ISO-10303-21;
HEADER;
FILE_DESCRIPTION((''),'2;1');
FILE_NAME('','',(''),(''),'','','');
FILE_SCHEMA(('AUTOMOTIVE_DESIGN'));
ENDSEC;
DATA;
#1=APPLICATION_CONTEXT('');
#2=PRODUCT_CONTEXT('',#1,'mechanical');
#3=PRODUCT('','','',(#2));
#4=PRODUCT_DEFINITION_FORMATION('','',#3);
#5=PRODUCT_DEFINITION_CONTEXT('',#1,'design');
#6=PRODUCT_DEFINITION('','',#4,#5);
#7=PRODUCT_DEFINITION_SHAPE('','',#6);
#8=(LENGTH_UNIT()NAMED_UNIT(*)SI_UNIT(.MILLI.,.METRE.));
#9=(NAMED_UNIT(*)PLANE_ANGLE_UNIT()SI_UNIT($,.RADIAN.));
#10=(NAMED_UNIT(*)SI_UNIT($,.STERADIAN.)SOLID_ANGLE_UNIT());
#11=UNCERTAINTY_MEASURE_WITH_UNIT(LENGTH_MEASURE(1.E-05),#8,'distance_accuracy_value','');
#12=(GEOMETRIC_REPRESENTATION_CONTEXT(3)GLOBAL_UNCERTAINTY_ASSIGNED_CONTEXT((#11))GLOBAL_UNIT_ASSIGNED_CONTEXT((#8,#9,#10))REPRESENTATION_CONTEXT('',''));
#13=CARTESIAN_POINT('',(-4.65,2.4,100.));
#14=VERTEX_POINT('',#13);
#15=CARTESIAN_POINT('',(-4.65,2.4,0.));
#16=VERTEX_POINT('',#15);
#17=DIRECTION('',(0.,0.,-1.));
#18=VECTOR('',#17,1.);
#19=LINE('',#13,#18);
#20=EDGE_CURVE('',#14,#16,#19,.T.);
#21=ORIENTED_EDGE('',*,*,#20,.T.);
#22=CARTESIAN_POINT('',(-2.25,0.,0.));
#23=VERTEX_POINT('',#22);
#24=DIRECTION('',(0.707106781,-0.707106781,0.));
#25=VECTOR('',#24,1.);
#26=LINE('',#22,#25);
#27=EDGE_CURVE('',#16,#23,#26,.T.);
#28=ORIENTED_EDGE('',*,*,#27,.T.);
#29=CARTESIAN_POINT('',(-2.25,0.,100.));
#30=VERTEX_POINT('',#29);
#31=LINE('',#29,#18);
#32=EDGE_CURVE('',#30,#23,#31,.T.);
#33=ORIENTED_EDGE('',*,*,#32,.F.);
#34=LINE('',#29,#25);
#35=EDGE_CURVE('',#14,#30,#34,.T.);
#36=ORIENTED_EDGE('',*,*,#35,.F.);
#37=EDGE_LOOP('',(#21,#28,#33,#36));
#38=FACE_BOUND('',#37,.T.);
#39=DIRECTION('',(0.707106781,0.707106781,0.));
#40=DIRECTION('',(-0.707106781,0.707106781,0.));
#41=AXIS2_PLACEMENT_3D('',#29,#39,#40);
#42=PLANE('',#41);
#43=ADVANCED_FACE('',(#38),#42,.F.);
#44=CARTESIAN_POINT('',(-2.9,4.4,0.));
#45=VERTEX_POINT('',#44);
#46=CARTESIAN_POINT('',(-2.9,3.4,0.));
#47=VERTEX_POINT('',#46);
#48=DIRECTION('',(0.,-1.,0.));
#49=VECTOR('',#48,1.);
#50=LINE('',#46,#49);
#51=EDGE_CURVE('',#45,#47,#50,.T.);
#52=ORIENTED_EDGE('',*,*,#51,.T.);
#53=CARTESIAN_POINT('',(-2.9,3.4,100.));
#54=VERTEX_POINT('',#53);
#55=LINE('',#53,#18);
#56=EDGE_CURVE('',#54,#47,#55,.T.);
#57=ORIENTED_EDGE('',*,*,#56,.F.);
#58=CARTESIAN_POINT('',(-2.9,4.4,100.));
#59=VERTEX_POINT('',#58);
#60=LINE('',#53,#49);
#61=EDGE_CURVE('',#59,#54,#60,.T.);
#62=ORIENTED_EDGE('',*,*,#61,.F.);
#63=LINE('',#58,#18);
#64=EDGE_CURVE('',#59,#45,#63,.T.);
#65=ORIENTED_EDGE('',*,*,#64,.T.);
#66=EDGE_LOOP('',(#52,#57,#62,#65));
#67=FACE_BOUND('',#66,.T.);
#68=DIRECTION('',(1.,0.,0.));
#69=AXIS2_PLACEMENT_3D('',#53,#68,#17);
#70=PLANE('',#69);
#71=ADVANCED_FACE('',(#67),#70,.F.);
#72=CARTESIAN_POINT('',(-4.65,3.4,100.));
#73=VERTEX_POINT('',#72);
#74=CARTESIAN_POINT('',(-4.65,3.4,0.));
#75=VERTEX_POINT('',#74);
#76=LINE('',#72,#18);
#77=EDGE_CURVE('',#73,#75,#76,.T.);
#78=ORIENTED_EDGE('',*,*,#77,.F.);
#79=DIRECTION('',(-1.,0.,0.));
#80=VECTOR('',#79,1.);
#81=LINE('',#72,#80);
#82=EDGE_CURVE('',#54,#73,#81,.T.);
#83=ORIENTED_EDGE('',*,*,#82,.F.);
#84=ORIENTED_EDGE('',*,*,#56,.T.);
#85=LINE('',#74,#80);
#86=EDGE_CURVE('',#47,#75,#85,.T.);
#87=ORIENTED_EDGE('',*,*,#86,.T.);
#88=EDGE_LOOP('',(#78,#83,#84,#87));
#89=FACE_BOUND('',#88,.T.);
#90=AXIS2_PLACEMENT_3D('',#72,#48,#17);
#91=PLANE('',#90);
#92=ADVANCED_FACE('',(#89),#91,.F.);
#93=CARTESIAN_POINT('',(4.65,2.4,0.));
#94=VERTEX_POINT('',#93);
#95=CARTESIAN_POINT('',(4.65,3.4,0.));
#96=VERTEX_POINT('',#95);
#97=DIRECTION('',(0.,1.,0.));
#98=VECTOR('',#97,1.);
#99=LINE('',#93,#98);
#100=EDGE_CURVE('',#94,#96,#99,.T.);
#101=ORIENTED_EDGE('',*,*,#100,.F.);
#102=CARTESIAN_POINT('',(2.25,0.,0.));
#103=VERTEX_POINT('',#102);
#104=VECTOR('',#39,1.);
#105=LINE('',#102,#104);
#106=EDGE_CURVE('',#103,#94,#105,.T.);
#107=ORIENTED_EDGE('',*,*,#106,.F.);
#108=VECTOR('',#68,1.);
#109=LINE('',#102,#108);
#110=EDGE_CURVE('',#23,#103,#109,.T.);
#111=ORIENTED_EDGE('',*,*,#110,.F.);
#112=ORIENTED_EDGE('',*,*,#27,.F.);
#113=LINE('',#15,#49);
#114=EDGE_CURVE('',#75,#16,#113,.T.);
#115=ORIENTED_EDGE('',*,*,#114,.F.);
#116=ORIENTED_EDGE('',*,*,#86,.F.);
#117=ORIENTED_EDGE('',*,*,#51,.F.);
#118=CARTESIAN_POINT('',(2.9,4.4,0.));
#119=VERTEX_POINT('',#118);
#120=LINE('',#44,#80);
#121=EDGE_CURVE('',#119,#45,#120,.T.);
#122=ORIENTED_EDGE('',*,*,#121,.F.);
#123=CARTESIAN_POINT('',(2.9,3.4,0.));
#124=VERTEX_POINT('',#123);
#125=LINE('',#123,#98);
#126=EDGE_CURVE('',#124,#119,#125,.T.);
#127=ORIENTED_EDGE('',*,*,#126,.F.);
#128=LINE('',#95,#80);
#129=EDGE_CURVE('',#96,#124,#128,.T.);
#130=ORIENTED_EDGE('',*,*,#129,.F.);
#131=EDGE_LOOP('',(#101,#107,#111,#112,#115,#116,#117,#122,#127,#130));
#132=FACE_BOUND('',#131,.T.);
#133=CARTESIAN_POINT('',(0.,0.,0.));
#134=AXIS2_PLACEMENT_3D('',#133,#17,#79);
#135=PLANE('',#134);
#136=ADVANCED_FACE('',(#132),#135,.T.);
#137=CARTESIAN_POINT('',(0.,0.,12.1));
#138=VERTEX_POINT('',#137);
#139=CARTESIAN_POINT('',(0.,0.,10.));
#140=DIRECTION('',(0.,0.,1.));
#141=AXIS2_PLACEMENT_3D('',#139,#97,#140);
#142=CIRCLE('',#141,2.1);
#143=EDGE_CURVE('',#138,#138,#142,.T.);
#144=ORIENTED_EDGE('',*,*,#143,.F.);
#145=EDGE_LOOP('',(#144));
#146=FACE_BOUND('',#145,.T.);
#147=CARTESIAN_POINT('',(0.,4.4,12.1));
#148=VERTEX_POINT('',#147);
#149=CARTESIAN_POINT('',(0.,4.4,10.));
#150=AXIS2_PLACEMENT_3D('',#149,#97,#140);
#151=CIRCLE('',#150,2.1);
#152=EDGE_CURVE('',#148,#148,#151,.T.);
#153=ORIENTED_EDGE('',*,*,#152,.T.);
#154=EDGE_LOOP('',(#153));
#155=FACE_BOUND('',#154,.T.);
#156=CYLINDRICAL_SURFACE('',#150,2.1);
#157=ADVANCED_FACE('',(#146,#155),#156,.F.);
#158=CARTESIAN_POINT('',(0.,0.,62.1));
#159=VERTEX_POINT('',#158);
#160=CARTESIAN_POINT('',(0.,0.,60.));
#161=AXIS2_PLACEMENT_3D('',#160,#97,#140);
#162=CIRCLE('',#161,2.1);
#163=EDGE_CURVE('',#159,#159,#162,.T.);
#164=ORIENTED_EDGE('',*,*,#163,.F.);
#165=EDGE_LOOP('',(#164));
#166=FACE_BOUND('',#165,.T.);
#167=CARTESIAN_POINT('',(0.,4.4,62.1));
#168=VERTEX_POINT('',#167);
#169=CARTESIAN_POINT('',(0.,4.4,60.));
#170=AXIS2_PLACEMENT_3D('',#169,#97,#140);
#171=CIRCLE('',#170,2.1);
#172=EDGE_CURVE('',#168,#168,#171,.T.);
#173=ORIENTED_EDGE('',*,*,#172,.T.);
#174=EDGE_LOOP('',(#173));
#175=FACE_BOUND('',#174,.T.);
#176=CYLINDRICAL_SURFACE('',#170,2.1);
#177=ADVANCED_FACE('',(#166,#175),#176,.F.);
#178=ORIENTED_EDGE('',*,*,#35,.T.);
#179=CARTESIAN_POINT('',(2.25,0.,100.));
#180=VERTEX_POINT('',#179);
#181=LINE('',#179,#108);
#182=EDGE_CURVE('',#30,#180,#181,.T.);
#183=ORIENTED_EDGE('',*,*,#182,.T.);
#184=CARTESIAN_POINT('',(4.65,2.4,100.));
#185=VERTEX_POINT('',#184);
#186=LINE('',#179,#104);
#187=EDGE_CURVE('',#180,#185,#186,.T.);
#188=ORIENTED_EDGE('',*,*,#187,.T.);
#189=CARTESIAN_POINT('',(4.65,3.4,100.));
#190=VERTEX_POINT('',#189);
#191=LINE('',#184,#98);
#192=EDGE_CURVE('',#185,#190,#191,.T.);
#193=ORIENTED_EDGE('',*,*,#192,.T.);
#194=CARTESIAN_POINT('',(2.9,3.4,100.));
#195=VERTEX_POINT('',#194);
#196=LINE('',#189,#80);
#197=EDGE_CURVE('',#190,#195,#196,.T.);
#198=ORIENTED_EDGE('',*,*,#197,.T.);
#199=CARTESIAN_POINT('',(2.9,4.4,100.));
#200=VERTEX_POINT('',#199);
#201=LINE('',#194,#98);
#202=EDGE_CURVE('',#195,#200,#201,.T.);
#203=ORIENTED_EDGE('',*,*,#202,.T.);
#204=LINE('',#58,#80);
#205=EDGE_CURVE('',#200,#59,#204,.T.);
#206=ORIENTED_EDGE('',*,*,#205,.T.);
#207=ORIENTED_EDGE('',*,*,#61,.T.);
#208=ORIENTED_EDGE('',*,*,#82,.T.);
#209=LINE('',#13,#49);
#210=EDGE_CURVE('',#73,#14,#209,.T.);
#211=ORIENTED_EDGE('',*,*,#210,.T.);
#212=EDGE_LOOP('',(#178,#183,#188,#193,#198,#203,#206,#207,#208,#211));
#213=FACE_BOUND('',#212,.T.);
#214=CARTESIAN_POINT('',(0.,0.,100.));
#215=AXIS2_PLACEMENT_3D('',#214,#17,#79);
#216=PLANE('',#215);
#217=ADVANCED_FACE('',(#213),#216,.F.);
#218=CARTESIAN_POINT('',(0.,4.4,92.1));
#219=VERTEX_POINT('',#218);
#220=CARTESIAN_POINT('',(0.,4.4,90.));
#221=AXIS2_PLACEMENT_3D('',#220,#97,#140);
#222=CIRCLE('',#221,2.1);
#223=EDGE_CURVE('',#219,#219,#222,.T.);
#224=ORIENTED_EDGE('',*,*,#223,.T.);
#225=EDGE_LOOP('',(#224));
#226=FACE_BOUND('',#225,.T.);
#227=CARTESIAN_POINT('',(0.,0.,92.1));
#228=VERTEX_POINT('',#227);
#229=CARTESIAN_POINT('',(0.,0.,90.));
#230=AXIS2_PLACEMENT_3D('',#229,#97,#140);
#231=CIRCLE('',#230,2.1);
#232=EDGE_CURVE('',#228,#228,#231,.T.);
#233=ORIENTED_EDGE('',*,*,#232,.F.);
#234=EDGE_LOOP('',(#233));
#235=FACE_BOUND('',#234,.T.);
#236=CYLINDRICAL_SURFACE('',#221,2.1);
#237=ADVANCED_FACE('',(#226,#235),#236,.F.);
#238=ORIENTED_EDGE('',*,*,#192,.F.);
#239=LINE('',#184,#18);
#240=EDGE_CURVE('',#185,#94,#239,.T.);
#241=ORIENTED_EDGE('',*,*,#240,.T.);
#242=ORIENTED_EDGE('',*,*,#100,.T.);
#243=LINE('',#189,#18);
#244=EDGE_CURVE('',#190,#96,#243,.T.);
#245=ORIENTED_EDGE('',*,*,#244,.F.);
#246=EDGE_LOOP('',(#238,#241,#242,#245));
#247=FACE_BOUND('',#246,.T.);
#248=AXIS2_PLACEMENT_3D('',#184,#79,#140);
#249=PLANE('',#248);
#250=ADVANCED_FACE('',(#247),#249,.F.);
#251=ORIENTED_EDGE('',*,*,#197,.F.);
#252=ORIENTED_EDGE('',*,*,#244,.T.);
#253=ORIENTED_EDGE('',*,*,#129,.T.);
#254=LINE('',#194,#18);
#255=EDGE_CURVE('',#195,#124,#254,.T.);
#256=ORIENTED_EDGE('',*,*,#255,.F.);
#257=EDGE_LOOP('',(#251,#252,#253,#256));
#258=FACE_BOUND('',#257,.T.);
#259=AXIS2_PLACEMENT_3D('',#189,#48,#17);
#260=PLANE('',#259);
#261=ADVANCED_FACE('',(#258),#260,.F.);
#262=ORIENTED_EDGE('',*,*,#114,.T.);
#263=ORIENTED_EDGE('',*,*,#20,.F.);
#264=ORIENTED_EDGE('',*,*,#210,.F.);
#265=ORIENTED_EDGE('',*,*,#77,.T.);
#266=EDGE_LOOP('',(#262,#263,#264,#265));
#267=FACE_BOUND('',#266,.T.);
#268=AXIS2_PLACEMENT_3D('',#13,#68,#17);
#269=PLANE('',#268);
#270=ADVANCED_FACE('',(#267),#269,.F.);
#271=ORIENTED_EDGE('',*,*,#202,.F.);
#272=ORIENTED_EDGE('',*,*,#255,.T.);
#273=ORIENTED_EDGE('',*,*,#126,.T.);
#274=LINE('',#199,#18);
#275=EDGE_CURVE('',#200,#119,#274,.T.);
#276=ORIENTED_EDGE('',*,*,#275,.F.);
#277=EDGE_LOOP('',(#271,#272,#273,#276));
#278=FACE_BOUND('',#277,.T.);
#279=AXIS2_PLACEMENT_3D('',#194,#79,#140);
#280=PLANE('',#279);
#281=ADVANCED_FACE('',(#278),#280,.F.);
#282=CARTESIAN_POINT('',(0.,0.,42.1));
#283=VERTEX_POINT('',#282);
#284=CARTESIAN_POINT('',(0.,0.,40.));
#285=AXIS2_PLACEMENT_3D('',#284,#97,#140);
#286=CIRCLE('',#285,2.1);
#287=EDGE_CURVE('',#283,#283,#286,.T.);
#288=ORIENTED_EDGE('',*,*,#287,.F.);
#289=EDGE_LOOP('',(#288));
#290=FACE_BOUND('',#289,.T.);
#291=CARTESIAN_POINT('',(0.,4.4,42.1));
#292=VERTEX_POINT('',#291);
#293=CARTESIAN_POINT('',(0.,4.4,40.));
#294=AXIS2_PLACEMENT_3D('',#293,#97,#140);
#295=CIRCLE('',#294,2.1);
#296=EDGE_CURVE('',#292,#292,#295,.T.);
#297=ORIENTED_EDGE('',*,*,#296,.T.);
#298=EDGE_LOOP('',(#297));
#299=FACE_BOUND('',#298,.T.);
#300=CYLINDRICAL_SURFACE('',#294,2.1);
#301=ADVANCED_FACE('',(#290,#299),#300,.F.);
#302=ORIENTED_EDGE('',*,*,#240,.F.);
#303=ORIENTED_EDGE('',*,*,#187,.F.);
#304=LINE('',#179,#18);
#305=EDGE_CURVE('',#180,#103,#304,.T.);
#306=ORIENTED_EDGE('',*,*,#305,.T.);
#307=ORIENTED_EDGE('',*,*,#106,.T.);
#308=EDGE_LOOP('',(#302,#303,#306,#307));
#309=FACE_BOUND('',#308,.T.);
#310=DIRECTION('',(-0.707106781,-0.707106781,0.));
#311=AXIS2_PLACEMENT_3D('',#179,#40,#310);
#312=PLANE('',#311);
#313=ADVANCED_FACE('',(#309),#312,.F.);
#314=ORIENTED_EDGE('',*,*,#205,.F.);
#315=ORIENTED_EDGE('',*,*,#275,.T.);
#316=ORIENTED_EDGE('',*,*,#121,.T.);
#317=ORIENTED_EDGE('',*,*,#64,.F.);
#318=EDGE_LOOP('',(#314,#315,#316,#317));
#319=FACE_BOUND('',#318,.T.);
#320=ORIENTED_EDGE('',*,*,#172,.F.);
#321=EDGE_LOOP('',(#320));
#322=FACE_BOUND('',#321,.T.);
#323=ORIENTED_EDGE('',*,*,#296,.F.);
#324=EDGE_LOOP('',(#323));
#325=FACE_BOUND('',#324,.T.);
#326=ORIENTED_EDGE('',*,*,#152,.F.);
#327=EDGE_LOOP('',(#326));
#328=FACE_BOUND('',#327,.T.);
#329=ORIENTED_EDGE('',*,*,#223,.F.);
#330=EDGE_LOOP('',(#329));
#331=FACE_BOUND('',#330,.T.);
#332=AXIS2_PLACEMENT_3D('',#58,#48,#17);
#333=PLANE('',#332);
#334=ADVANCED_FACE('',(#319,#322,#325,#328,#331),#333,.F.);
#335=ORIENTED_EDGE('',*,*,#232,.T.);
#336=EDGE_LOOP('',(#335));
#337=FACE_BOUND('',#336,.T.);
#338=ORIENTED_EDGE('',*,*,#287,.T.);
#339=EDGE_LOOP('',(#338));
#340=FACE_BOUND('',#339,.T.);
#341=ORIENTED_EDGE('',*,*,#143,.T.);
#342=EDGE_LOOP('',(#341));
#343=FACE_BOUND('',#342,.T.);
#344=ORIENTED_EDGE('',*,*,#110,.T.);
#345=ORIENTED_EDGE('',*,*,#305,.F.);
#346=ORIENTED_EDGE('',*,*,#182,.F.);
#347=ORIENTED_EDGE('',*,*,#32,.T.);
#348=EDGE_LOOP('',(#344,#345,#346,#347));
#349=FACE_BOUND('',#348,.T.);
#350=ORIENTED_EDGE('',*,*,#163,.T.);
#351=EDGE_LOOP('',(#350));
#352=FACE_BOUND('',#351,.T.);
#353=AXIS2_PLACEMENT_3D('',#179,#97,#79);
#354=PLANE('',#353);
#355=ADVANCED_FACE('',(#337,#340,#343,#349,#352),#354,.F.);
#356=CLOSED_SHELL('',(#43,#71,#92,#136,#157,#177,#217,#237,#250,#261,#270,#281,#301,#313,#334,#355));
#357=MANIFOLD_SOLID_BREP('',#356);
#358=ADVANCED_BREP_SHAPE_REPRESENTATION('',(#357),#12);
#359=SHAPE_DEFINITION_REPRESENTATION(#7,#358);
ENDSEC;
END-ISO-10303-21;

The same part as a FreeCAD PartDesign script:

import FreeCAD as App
import Part
import Sketcher

doc = App.newDocument("Part")
body = doc.addObject("PartDesign::Body", "Body")

# Sketch on XY plane
sketch1 = body.newObject("Sketcher::SketchObject", "Sketch")
sketch1.AttachmentSupport = (doc.getObject("XY_Plane"), [""])
sketch1.MapMode = "FlatFace"
sketch1.addGeometry(Part.LineSegment(App.Vector(-2.2, 0, 0), App.Vector(2.2, 0, 0)), False)
sketch1.addGeometry(Part.LineSegment(App.Vector(2.2, 0, 0), App.Vector(4.7, 2.4, 0)), False)
sketch1.addGeometry(Part.LineSegment(App.Vector(4.7, 2.4, 0), App.Vector(4.7, 3.4, 0)), False)
sketch1.addGeometry(Part.LineSegment(App.Vector(4.7, 3.4, 0), App.Vector(2.9, 3.4, 0)), False)
sketch1.addGeometry(Part.LineSegment(App.Vector(2.9, 3.4, 0), App.Vector(2.9, 4.4, 0)), False)
sketch1.addGeometry(Part.LineSegment(App.Vector(2.9, 4.4, 0), App.Vector(-2.9, 4.4, 0)), False)
sketch1.addGeometry(Part.LineSegment(App.Vector(-2.9, 4.4, 0), App.Vector(-2.9, 3.4, 0)), False)
sketch1.addGeometry(Part.LineSegment(App.Vector(-2.9, 3.4, 0), App.Vector(-4.7, 3.4, 0)), False)
sketch1.addGeometry(Part.LineSegment(App.Vector(-4.7, 3.4, 0), App.Vector(-4.7, 2.4, 0)), False)
sketch1.addGeometry(Part.LineSegment(App.Vector(-4.7, 2.4, 0), App.Vector(-2.2, 0, 0)), False)
sketch1.addConstraint(Sketcher.Constraint("Coincident", 0, 2, 1, 1))
sketch1.addConstraint(Sketcher.Constraint("Coincident", 1, 2, 2, 1))
sketch1.addConstraint(Sketcher.Constraint("Coincident", 2, 2, 3, 1))
sketch1.addConstraint(Sketcher.Constraint("Coincident", 3, 2, 4, 1))
sketch1.addConstraint(Sketcher.Constraint("Coincident", 4, 2, 5, 1))
sketch1.addConstraint(Sketcher.Constraint("Coincident", 5, 2, 6, 1))
sketch1.addConstraint(Sketcher.Constraint("Coincident", 6, 2, 7, 1))
sketch1.addConstraint(Sketcher.Constraint("Coincident", 7, 2, 8, 1))
sketch1.addConstraint(Sketcher.Constraint("Coincident", 8, 2, 9, 1))
sketch1.addConstraint(Sketcher.Constraint("Coincident", 9, 2, 0, 1))
sketch1.addConstraint(Sketcher.Constraint("Horizontal", 0))
sketch1.addConstraint(Sketcher.Constraint("Vertical", 2))
sketch1.addConstraint(Sketcher.Constraint("Horizontal", 3))
sketch1.addConstraint(Sketcher.Constraint("Vertical", 4))
sketch1.addConstraint(Sketcher.Constraint("Horizontal", 5))
sketch1.addConstraint(Sketcher.Constraint("Vertical", 6))
sketch1.addConstraint(Sketcher.Constraint("Horizontal", 7))
sketch1.addConstraint(Sketcher.Constraint("Vertical", 8))
sketch1.addConstraint(Sketcher.Constraint("Symmetric", 0, 2, 9, 2, -1, 1))
sketch1.addConstraint(Sketcher.Constraint("Symmetric", 3, 2, 6, 2, -2))
sketch1.addConstraint(Sketcher.Constraint("Symmetric", 1, 2, 8, 2, -2))
sketch1.addConstraint(Sketcher.Constraint("Perpendicular", 1, 9))
sketch1.addConstraint(Sketcher.Constraint("Equal", 2, 4))
sketch1.addConstraint(Sketcher.Constraint("DistanceY", 2, 1, 2, 2, 1.0))
sketch1.addConstraint(Sketcher.Constraint("DistanceX", 0, 1, 0, 2, 4.5))
sketch1.addConstraint(Sketcher.Constraint("DistanceX", 5, 2, 5, 1, 5.8))
sketch1.addConstraint(Sketcher.Constraint("DistanceX", 3, 2, 3, 1, 1.75))
pad1 = body.newObject("PartDesign::Pad", "Pad")
pad1.Profile = sketch1
pad1.Length = 100

# Sketch on XZ plane
sketch2 = body.newObject("Sketcher::SketchObject", "Sketch001")
sketch2.AttachmentSupport = (doc.getObject("XZ_Plane"), [""])
sketch2.MapMode = "FlatFace"
sketch2.AttachmentOffset = App.Placement(App.Vector(0, 0, -4.4), App.Rotation())
sketch2.addGeometry(Part.Circle(App.Vector(0, 10, 0), App.Vector(0, 0, 1), 2.1), False)
sketch2.addGeometry(Part.Circle(App.Vector(0, 40, 0), App.Vector(0, 0, 1), 2.1), False)
sketch2.addGeometry(Part.Circle(App.Vector(0, 60, 0), App.Vector(0, 0, 1), 2.1), False)
sketch2.addGeometry(Part.Circle(App.Vector(0, 90, 0), App.Vector(0, 0, 1), 2.1), False)
sketch2.addConstraint(Sketcher.Constraint("Equal", 0, 1))
sketch2.addConstraint(Sketcher.Constraint("Equal", 1, 2))
sketch2.addConstraint(Sketcher.Constraint("Equal", 2, 3))
sketch2.addConstraint(Sketcher.Constraint("PointOnObject", 0, 3, -2))
sketch2.addConstraint(Sketcher.Constraint("PointOnObject", 1, 3, -2))
sketch2.addConstraint(Sketcher.Constraint("PointOnObject", 2, 3, -2))
sketch2.addConstraint(Sketcher.Constraint("PointOnObject", 3, 3, -2))
sketch2.addConstraint(Sketcher.Constraint("Diameter", 0, 4.2))
sketch2.addConstraint(Sketcher.Constraint("DistanceY", -1, 1, 0, 3, 10.0))
sketch2.addConstraint(Sketcher.Constraint("DistanceY", -1, 1, 1, 3, 40.0))
sketch2.addConstraint(Sketcher.Constraint("DistanceY", -1, 1, 2, 3, 60.0))
sketch2.addConstraint(Sketcher.Constraint("DistanceY", -1, 1, 3, 3, 90.0))
doc.recompute()
hole = body.newObject("PartDesign::Hole", "Hole")
hole.Profile = sketch2
hole.ThreadType = "None"
hole.Diameter = 4.2
hole.DepthType = "ThroughAll"
hole.Reversed = True

doc.recompute()
